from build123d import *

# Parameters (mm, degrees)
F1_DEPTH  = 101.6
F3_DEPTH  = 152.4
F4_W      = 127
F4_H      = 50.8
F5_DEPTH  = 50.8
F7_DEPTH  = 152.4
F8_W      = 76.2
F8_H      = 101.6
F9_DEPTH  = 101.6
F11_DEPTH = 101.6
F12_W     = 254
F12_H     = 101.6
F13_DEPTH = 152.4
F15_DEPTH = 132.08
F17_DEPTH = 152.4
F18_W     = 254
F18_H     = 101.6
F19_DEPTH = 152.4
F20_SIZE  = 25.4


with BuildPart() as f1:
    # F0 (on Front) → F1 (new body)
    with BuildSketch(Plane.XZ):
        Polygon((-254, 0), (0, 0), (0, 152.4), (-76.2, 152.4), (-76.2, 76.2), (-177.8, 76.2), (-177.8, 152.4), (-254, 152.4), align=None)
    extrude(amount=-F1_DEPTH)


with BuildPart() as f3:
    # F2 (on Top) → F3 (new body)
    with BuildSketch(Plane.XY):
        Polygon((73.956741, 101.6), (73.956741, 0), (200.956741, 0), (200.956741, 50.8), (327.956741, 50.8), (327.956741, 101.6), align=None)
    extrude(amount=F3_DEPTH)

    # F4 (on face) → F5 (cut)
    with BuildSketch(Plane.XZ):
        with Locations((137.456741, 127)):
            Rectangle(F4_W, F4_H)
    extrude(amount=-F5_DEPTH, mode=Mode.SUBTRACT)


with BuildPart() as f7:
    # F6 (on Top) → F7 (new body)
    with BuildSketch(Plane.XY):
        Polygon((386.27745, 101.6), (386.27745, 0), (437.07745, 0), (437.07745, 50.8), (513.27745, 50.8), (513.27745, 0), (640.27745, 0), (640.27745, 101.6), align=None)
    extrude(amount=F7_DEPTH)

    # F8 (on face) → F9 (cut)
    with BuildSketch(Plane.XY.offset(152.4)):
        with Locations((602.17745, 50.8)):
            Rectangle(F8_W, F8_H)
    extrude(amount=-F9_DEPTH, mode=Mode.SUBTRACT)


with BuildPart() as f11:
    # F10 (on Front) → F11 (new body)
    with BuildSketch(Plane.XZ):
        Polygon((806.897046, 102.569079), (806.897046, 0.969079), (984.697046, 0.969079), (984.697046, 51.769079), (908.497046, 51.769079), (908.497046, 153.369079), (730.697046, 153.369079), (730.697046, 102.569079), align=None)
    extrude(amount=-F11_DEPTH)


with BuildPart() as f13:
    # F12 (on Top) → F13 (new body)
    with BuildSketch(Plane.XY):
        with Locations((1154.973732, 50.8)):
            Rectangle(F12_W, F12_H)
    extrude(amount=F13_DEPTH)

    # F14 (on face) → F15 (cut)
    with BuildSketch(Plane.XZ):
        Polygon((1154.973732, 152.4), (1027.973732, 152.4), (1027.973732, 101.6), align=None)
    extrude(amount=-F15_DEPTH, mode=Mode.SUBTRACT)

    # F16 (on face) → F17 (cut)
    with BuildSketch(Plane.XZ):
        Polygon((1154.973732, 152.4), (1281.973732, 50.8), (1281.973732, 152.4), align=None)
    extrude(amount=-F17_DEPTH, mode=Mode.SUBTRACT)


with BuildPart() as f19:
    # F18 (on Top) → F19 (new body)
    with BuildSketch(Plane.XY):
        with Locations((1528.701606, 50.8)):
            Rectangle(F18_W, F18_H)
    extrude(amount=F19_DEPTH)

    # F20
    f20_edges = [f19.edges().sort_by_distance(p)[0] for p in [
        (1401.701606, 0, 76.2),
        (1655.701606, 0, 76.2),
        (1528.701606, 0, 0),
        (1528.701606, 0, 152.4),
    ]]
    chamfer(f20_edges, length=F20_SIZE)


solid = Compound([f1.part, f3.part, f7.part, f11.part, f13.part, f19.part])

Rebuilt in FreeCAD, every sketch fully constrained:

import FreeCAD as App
import Part
import Sketcher

V = App.Vector
Q = App.Units.Quantity


def edges_at(feature, points):
    """Names of the edges that pass closest to the given points."""
    edges = feature.Shape.Edges
    near = lambda p: min(range(len(edges)), key=lambda i: edges[i].distToShape(Part.Vertex(*p))[0])
    return sorted({f"Edge{near(p) + 1}" for p in points})

doc = App.newDocument("Part")
body = doc.addObject("PartDesign::Body", "Body")

# Sketch on XZ plane
sketch1 = body.newObject("Sketcher::SketchObject", "Sketch")
sketch1.AttachmentSupport = (doc.getObject("XZ_Plane"), [""])
sketch1.MapMode = "FlatFace"
sketch1.addGeometry(Part.LineSegment(V(-254, 0, 0), V(0, 0, 0)), False)
sketch1.addGeometry(Part.LineSegment(V(0, 0, 0), V(0, 152, 0)), False)
sketch1.addGeometry(Part.LineSegment(V(0, 152, 0), V(-76, 152, 0)), False)
sketch1.addGeometry(Part.LineSegment(V(-76, 152, 0), V(-76, 76, 0)), False)
sketch1.addGeometry(Part.LineSegment(V(-76, 76, 0), V(-178, 76, 0)), False)
sketch1.addGeometry(Part.LineSegment(V(-178, 76, 0), V(-178, 152, 0)), False)
sketch1.addGeometry(Part.LineSegment(V(-178, 152, 0), V(-254, 152, 0)), False)
sketch1.addGeometry(Part.LineSegment(V(-254, 152, 0), V(-254, 0, 0)), False)
sketch1.addConstraint(Sketcher.Constraint("Coincident", 0, 2, 1, 1))
sketch1.addConstraint(Sketcher.Constraint("Coincident", 1, 2, 2, 1))
sketch1.addConstraint(Sketcher.Constraint("Coincident", 2, 2, 3, 1))
sketch1.addConstraint(Sketcher.Constraint("Coincident", 3, 2, 4, 1))
sketch1.addConstraint(Sketcher.Constraint("Coincident", 4, 2, 5, 1))
sketch1.addConstraint(Sketcher.Constraint("Coincident", 5, 2, 6, 1))
sketch1.addConstraint(Sketcher.Constraint("Coincident", 6, 2, 7, 1))
sketch1.addConstraint(Sketcher.Constraint("Coincident", 7, 2, 0, 1))
sketch1.addConstraint(Sketcher.Constraint("Horizontal", 0))
sketch1.addConstraint(Sketcher.Constraint("Vertical", 1))
sketch1.addConstraint(Sketcher.Constraint("Horizontal", 2))
sketch1.addConstraint(Sketcher.Constraint("Vertical", 3))
sketch1.addConstraint(Sketcher.Constraint("Horizontal", 4))
sketch1.addConstraint(Sketcher.Constraint("Vertical", 5))
sketch1.addConstraint(Sketcher.Constraint("Horizontal", 6))
sketch1.addConstraint(Sketcher.Constraint("Vertical", 7))
sketch1.addConstraint(Sketcher.Constraint("Coincident", 0, 2, -1, 1))
sketch1.addConstraint(Sketcher.Constraint("Horizontal", 2, 2, 5, 2))
sketch1.addConstraint(Sketcher.Constraint("Equal", 2, 6))
sketch1.addConstraint(Sketcher.Constraint("Equal", 6, 3))
sketch1.addConstraint(Sketcher.Constraint("DistanceX", 0, 1, 0, 2, Q("10 in")))
sketch1.addConstraint(Sketcher.Constraint("DistanceX", 2, 2, 2, 1, Q("3 in")))
sketch1.addConstraint(Sketcher.Constraint("DistanceY", 1, 1, 1, 2, Q("6 in")))
pad1 = body.newObject("PartDesign::Pad", "Pad")
pad1.Profile = sketch1
pad1.Length = Q("4 in")
pad1.Reversed = True
body2 = doc.addObject("PartDesign::Body", "Body001")

# Sketch on XY plane
sketch2 = body2.newObject("Sketcher::SketchObject", "Sketch001")
sketch2.AttachmentSupport = (doc.getObject("XY_Plane001"), [""])
sketch2.MapMode = "FlatFace"
sketch2.addGeometry(Part.LineSegment(V(74, 102, 0), V(74, 0, 0)), False)
sketch2.addGeometry(Part.LineSegment(V(74, 0, 0), V(201, 0, 0)), False)
sketch2.addGeometry(Part.LineSegment(V(201, 0, 0), V(201, 51, 0)), False)
sketch2.addGeometry(Part.LineSegment(V(201, 51, 0), V(328, 51, 0)), False)
sketch2.addGeometry(Part.LineSegment(V(328, 51, 0), V(328, 102, 0)), False)
sketch2.addGeometry(Part.LineSegment(V(328, 102, 0), V(74, 102, 0)), False)
sketch2.addConstraint(Sketcher.Constraint("Coincident", 0, 2, 1, 1))
sketch2.addConstraint(Sketcher.Constraint("Coincident", 1, 2, 2, 1))
sketch2.addConstraint(Sketcher.Constraint("Coincident", 2, 2, 3, 1))
sketch2.addConstraint(Sketcher.Constraint("Coincident", 3, 2, 4, 1))
sketch2.addConstraint(Sketcher.Constraint("Coincident", 4, 2, 5, 1))
sketch2.addConstraint(Sketcher.Constraint("Coincident", 5, 2, 0, 1))
sketch2.addConstraint(Sketcher.Constraint("Vertical", 0))
sketch2.addConstraint(Sketcher.Constraint("Horizontal", 1))
sketch2.addConstraint(Sketcher.Constraint("Vertical", 2))
sketch2.addConstraint(Sketcher.Constraint("Horizontal", 3))
sketch2.addConstraint(Sketcher.Constraint("Vertical", 4))
sketch2.addConstraint(Sketcher.Constraint("Horizontal", 5))
sketch2.addConstraint(Sketcher.Constraint("PointOnObject", 0, 2, -1))
sketch2.addConstraint(Sketcher.Constraint("Equal", 1, 3))
sketch2.addConstraint(Sketcher.Constraint("Equal", 2, 4))
sketch2.addConstraint(Sketcher.Constraint("DistanceX", 1, 1, 1, 2, Q("5 in")))
sketch2.addConstraint(Sketcher.Constraint("DistanceY", 0, 2, 0, 1, Q("4 in")))
sketch2.addConstraint(Sketcher.Constraint("DistanceX", -1, 1, 0, 2, Q("73.956741 mm")))
pad2 = body2.newObject("PartDesign::Pad", "Pad001")
pad2.Profile = sketch2
pad2.Length = Q("6 in")

# Sketch on XZ plane
sketch3 = body2.newObject("Sketcher::SketchObject", "Sketch002")
sketch3.AttachmentSupport = (doc.getObject("XZ_Plane001"), [""])
sketch3.MapMode = "FlatFace"
sketch3.addGeometry(Part.LineSegment(V(74, 152, 0), V(74, 102, 0)), False)
sketch3.addGeometry(Part.LineSegment(V(74, 102, 0), V(201, 102, 0)), False)
sketch3.addGeometry(Part.LineSegment(V(201, 102, 0), V(201, 152, 0)), False)
sketch3.addGeometry(Part.LineSegment(V(201, 152, 0), V(74, 152, 0)), False)
sketch3.addConstraint(Sketcher.Constraint("Coincident", 0, 2, 1, 1))
sketch3.addConstraint(Sketcher.Constraint("Coincident", 1, 2, 2, 1))
sketch3.addConstraint(Sketcher.Constraint("Coincident", 2, 2, 3, 1))
sketch3.addConstraint(Sketcher.Constraint("Coincident", 3, 2, 0, 1))
sketch3.addConstraint(Sketcher.Constraint("Vertical", 0))
sketch3.addConstraint(Sketcher.Constraint("Horizontal", 1))
sketch3.addConstraint(Sketcher.Constraint("Vertical", 2))
sketch3.addConstraint(Sketcher.Constraint("Horizontal", 3))
sketch3.addConstraint(Sketcher.Constraint("DistanceX", 1, 1, 1, 2, Q("5 in")))
sketch3.addConstraint(Sketcher.Constraint("DistanceY", 0, 2, 0, 1, Q("2 in")))
sketch3.addConstraint(Sketcher.Constraint("DistanceY", -1, 1, 0, 2, Q("4 in")))
sketch3.addConstraint(Sketcher.Constraint("DistanceX", -1, 1, 0, 2, Q("73.956741 mm")))
pocket1 = body2.newObject("PartDesign::Pocket", "Pocket")
pocket1.Profile = sketch3
pocket1.Length = Q("2 in")
body3 = doc.addObject("PartDesign::Body", "Body002")

# Sketch on XY plane
sketch4 = body3.newObject("Sketcher::SketchObject", "Sketch003")
sketch4.AttachmentSupport = (doc.getObject("XY_Plane002"), [""])
sketch4.MapMode = "FlatFace"
sketch4.addGeometry(Part.LineSegment(V(386, 102, 0), V(386, 0, 0)), False)
sketch4.addGeometry(Part.LineSegment(V(386, 0, 0), V(437, 0, 0)), False)
sketch4.addGeometry(Part.LineSegment(V(437, 0, 0), V(437, 51, 0)), False)
sketch4.addGeometry(Part.LineSegment(V(437, 51, 0), V(513, 51, 0)), False)
sketch4.addGeometry(Part.LineSegment(V(513, 51, 0), V(513, 0, 0)), False)
sketch4.addGeometry(Part.LineSegment(V(513, 0, 0), V(640, 0, 0)), False)
sketch4.addGeometry(Part.LineSegment(V(640, 0, 0), V(640, 102, 0)), False)
sketch4.addGeometry(Part.LineSegment(V(640, 102, 0), V(386, 102, 0)), False)
sketch4.addConstraint(Sketcher.Constraint("Coincident", 0, 2, 1, 1))
sketch4.addConstraint(Sketcher.Constraint("Coincident", 1, 2, 2, 1))
sketch4.addConstraint(Sketcher.Constraint("Coincident", 2, 2, 3, 1))
sketch4.addConstraint(Sketcher.Constraint("Coincident", 3, 2, 4, 1))
sketch4.addConstraint(Sketcher.Constraint("Coincident", 4, 2, 5, 1))
sketch4.addConstraint(Sketcher.Constraint("Coincident", 5, 2, 6, 1))
sketch4.addConstraint(Sketcher.Constraint("Coincident", 6, 2, 7, 1))
sketch4.addConstraint(Sketcher.Constraint("Coincident", 7, 2, 0, 1))
sketch4.addConstraint(Sketcher.Constraint("Vertical", 0))
sketch4.addConstraint(Sketcher.Constraint("Horizontal", 1))
sketch4.addConstraint(Sketcher.Constraint("Vertical", 2))
sketch4.addConstraint(Sketcher.Constraint("Horizontal", 3))
sketch4.addConstraint(Sketcher.Constraint("Vertical", 4))
sketch4.addConstraint(Sketcher.Constraint("Horizontal", 5))
sketch4.addConstraint(Sketcher.Constraint("Vertical", 6))
sketch4.addConstraint(Sketcher.Constraint("Horizontal", 7))
sketch4.addConstraint(Sketcher.Constraint("PointOnObject", 0, 2, -1))
sketch4.addConstraint(Sketcher.Constraint("PointOnObject", 4, 2, -1))
sketch4.addConstraint(Sketcher.Constraint("Equal", 1, 2))
sketch4.addConstraint(Sketcher.Constraint("DistanceX", 1, 1, 1, 2, Q("2 in")))
sketch4.addConstraint(Sketcher.Constraint("DistanceX", 3, 1, 3, 2, Q("3 in")))
sketch4.addConstraint(Sketcher.Constraint("DistanceX", 5, 1, 5, 2, Q("5 in")))
sketch4.addConstraint(Sketcher.Constraint("DistanceY", 0, 2, 0, 1, Q("4 in")))
sketch4.addConstraint(Sketcher.Constraint("DistanceX", -1, 1, 0, 2, Q("386.27745 mm")))
pad3 = body3.newObject("PartDesign::Pad", "Pad002")
pad3.Profile = sketch4
pad3.Length = Q("6 in")

# Sketch on XY plane
sketch5 = body3.newObject("Sketcher::SketchObject", "Sketch004")
sketch5.AttachmentSupport = (doc.getObject("XY_Plane002"), [""])
sketch5.MapMode = "FlatFace"
sketch5.AttachmentOffset = App.Placement(V(0, 0, 6 * 25.4), App.Rotation())
sketch5.addGeometry(Part.LineSegment(V(564, 102, 0), V(564, 0, 0)), False)
sketch5.addGeometry(Part.LineSegment(V(564, 0, 0), V(640, 0, 0)), False)
sketch5.addGeometry(Part.LineSegment(V(640, 0, 0), V(640, 102, 0)), False)
sketch5.addGeometry(Part.LineSegment(V(640, 102, 0), V(564, 102, 0)), False)
sketch5.addConstraint(Sketcher.Constraint("Coincident", 0, 2, 1, 1))
sketch5.addConstraint(Sketcher.Constraint("Coincident", 1, 2, 2, 1))
sketch5.addConstraint(Sketcher.Constraint("Coincident", 2, 2, 3, 1))
sketch5.addConstraint(Sketcher.Constraint("Coincident", 3, 2, 0, 1))
sketch5.addConstraint(Sketcher.Constraint("Vertical", 0))
sketch5.addConstraint(Sketcher.Constraint("Horizontal", 1))
sketch5.addConstraint(Sketcher.Constraint("Vertical", 2))
sketch5.addConstraint(Sketcher.Constraint("Horizontal", 3))
sketch5.addConstraint(Sketcher.Constraint("PointOnObject", 0, 2, -1))
sketch5.addConstraint(Sketcher.Constraint("DistanceX", 1, 1, 1, 2, Q("3 in")))
sketch5.addConstraint(Sketcher.Constraint("DistanceY", 0, 2, 0, 1, Q("4 in")))
sketch5.addConstraint(Sketcher.Constraint("DistanceX", -1, 1, 0, 2, Q("564.07745 mm")))
pocket2 = body3.newObject("PartDesign::Pocket", "Pocket001")
pocket2.Profile = sketch5
pocket2.Length = Q("4 in")
body4 = doc.addObject("PartDesign::Body", "Body003")

# Sketch on XZ plane
sketch6 = body4.newObject("Sketcher::SketchObject", "Sketch005")
sketch6.AttachmentSupport = (doc.getObject("XZ_Plane003"), [""])
sketch6.MapMode = "FlatFace"
sketch6.addGeometry(Part.LineSegment(V(807, 103, 0), V(807, 1, 0)), False)
sketch6.addGeometry(Part.LineSegment(V(807, 1, 0), V(985, 1, 0)), False)
sketch6.addGeometry(Part.LineSegment(V(985, 1, 0), V(985, 52, 0)), False)
sketch6.addGeometry(Part.LineSegment(V(985, 52, 0), V(908, 52, 0)), False)
sketch6.addGeometry(Part.LineSegment(V(908, 52, 0), V(908, 153, 0)), False)
sketch6.addGeometry(Part.LineSegment(V(908, 153, 0), V(731, 153, 0)), False)
sketch6.addGeometry(Part.LineSegment(V(731, 153, 0), V(731, 103, 0)), False)
sketch6.addGeometry(Part.LineSegment(V(731, 103, 0), V(807, 103, 0)), False)
sketch6.addConstraint(Sketcher.Constraint("Coincident", 0, 2, 1, 1))
sketch6.addConstraint(Sketcher.Constraint("Coincident", 1, 2, 2, 1))
sketch6.addConstraint(Sketcher.Constraint("Coincident", 2, 2, 3, 1))
sketch6.addConstraint(Sketcher.Constraint("Coincident", 3, 2, 4, 1))
sketch6.addConstraint(Sketcher.Constraint("Coincident", 4, 2, 5, 1))
sketch6.addConstraint(Sketcher.Constraint("Coincident", 5, 2, 6, 1))
sketch6.addConstraint(Sketcher.Constraint("Coincident", 6, 2, 7, 1))
sketch6.addConstraint(Sketcher.Constraint("Coincident", 7, 2, 0, 1))
sketch6.addConstraint(Sketcher.Constraint("Vertical", 0))
sketch6.addConstraint(Sketcher.Constraint("Horizontal", 1))
sketch6.addConstraint(Sketcher.Constraint("Vertical", 2))
sketch6.addConstraint(Sketcher.Constraint("Horizontal", 3))
sketch6.addConstraint(Sketcher.Constraint("Vertical", 4))
sketch6.addConstraint(Sketcher.Constraint("Horizontal", 5))
sketch6.addConstraint(Sketcher.Constraint("Vertical", 6))
sketch6.addConstraint(Sketcher.Constraint("Horizontal", 7))
sketch6.addConstraint(Sketcher.Constraint("Equal", 1, 5))
sketch6.addConstraint(Sketcher.Constraint("Equal", 0, 4))
sketch6.addConstraint(Sketcher.Constraint("DistanceX", 1, 1, 1, 2, Q("7 in")))
sketch6.addConstraint(Sketcher.Constraint("DistanceX", 3, 2, 3, 1, Q("3 in")))
sketch6.addConstraint(Sketcher.Constraint("DistanceY", 0, 2, 0, 1, Q("4 in")))
sketch6.addConstraint(Sketcher.Constraint("DistanceY", 2, 1, 2, 2, Q("2 in")))
sketch6.addConstraint(Sketcher.Constraint("DistanceY", -1, 1, 0, 2, Q("0.969079 mm")))
sketch6.addConstraint(Sketcher.Constraint("DistanceX", -1, 1, 0, 2, Q("806.897046 mm")))
pad4 = body4.newObject("PartDesign::Pad", "Pad003")
pad4.Profile = sketch6
pad4.Length = Q("4 in")
pad4.Reversed = True
body5 = doc.addObject("PartDesign::Body", "Body004")

# Sketch on XY plane
sketch7 = body5.newObject("Sketcher::SketchObject", "Sketch006")
sketch7.AttachmentSupport = (doc.getObject("XY_Plane004"), [""])
sketch7.MapMode = "FlatFace"
sketch7.addGeometry(Part.LineSegment(V(1028, 102, 0), V(1028, 0, 0)), False)
sketch7.addGeometry(Part.LineSegment(V(1028, 0, 0), V(1282, 0, 0)), False)
sketch7.addGeometry(Part.LineSegment(V(1282, 0, 0), V(1282, 102, 0)), False)
sketch7.addGeometry(Part.LineSegment(V(1282, 102, 0), V(1028, 102, 0)), False)
sketch7.addConstraint(Sketcher.Constraint("Coincident", 0, 2, 1, 1))
sketch7.addConstraint(Sketcher.Constraint("Coincident", 1, 2, 2, 1))
sketch7.addConstraint(Sketcher.Constraint("Coincident", 2, 2, 3, 1))
sketch7.addConstraint(Sketcher.Constraint("Coincident", 3, 2, 0, 1))
sketch7.addConstraint(Sketcher.Constraint("Vertical", 0))
sketch7.addConstraint(Sketcher.Constraint("Horizontal", 1))
sketch7.addConstraint(Sketcher.Constraint("Vertical", 2))
sketch7.addConstraint(Sketcher.Constraint("Horizontal", 3))
sketch7.addConstraint(Sketcher.Constraint("PointOnObject", 0, 2, -1))
sketch7.addConstraint(Sketcher.Constraint("DistanceX", 1, 1, 1, 2, Q("10 in")))
sketch7.addConstraint(Sketcher.Constraint("DistanceY", 0, 2, 0, 1, Q("4 in")))
sketch7.addConstraint(Sketcher.Constraint("DistanceX", -1, 1, 0, 2, Q("1027.973732 mm")))
pad5 = body5.newObject("PartDesign::Pad", "Pad004")
pad5.Profile = sketch7
pad5.Length = Q("6 in")

# Sketch on XZ plane
sketch8 = body5.newObject("Sketcher::SketchObject", "Sketch007")
sketch8.AttachmentSupport = (doc.getObject("XZ_Plane004"), [""])
sketch8.MapMode = "FlatFace"
sketch8.addGeometry(Part.LineSegment(V(1155, 152, 0), V(1028, 152, 0)), False)
sketch8.addGeometry(Part.LineSegment(V(1028, 152, 0), V(1028, 102, 0)), False)
sketch8.addGeometry(Part.LineSegment(V(1028, 102, 0), V(1155, 152, 0)), False)
sketch8.addConstraint(Sketcher.Constraint("Coincident", 0, 2, 1, 1))
sketch8.addConstraint(Sketcher.Constraint("Coincident", 1, 2, 2, 1))
sketch8.addConstraint(Sketcher.Constraint("Coincident", 2, 2, 0, 1))
sketch8.addConstraint(Sketcher.Constraint("Horizontal", 0))
sketch8.addConstraint(Sketcher.Constraint("Vertical", 1))
sketch8.addConstraint(Sketcher.Constraint("DistanceX", 0, 2, 0, 1, Q("5 in")))
sketch8.addConstraint(Sketcher.Constraint("DistanceY", 1, 2, 1, 1, Q("2 in")))
sketch8.addConstraint(Sketcher.Constraint("DistanceY", -1, 1, 0, 2, Q("6 in")))
sketch8.addConstraint(Sketcher.Constraint("DistanceX", -1, 1, 0, 2, Q("1027.973732 mm")))
pocket3 = body5.newObject("PartDesign::Pocket", "Pocket002")
pocket3.Profile = sketch8
pocket3.Length = Q("5.2 in")

# Sketch on XZ plane
sketch9 = body5.newObject("Sketcher::SketchObject", "Sketch008")
sketch9.AttachmentSupport = (doc.getObject("XZ_Plane004"), [""])
sketch9.MapMode = "FlatFace"
sketch9.addGeometry(Part.LineSegment(V(1155, 152, 0), V(1282, 51, 0)), False)
sketch9.addGeometry(Part.LineSegment(V(1282, 51, 0), V(1282, 152, 0)), False)
sketch9.addGeometry(Part.LineSegment(V(1282, 152, 0), V(1155, 152, 0)), False)
sketch9.addConstraint(Sketcher.Constraint("Coincident", 0, 2, 1, 1))
sketch9.addConstraint(Sketcher.Constraint("Coincident", 1, 2, 2, 1))
sketch9.addConstraint(Sketcher.Constraint("Coincident", 2, 2, 0, 1))
sketch9.addConstraint(Sketcher.Constraint("Vertical", 1))
sketch9.addConstraint(Sketcher.Constraint("Horizontal", 2))
sketch9.addConstraint(Sketcher.Constraint("DistanceX", 2, 2, 2, 1, Q("5 in")))
sketch9.addConstraint(Sketcher.Constraint("DistanceY", 1, 1, 1, 2, Q("4 in")))
sketch9.addConstraint(Sketcher.Constraint("DistanceY", -1, 1, 0, 2, Q("2 in")))
sketch9.addConstraint(Sketcher.Constraint("DistanceX", -1, 1, 0, 2, Q("1281.973732 mm")))
pocket4 = body5.newObject("PartDesign::Pocket", "Pocket003")
pocket4.Profile = sketch9
pocket4.Length = Q("6 in")
body6 = doc.addObject("PartDesign::Body", "Body005")

# Sketch on XY plane
sketch10 = body6.newObject("Sketcher::SketchObject", "Sketch009")
sketch10.AttachmentSupport = (doc.getObject("XY_Plane005"), [""])
sketch10.MapMode = "FlatFace"
sketch10.addGeometry(Part.LineSegment(V(1402, 102, 0), V(1402, 0, 0)), False)
sketch10.addGeometry(Part.LineSegment(V(1402, 0, 0), V(1656, 0, 0)), False)
sketch10.addGeometry(Part.LineSegment(V(1656, 0, 0), V(1656, 102, 0)), False)
sketch10.addGeometry(Part.LineSegment(V(1656, 102, 0), V(1402, 102, 0)), False)
sketch10.addConstraint(Sketcher.Constraint("Coincident", 0, 2, 1, 1))
sketch10.addConstraint(Sketcher.Constraint("Coincident", 1, 2, 2, 1))
sketch10.addConstraint(Sketcher.Constraint("Coincident", 2, 2, 3, 1))
sketch10.addConstraint(Sketcher.Constraint("Coincident", 3, 2, 0, 1))
sketch10.addConstraint(Sketcher.Constraint("Vertical", 0))
sketch10.addConstraint(Sketcher.Constraint("Horizontal", 1))
sketch10.addConstraint(Sketcher.Constraint("Vertical", 2))
sketch10.addConstraint(Sketcher.Constraint("Horizontal", 3))
sketch10.addConstraint(Sketcher.Constraint("PointOnObject", 0, 2, -1))
sketch10.addConstraint(Sketcher.Constraint("DistanceX", 1, 1, 1, 2, Q("10 in")))
sketch10.addConstraint(Sketcher.Constraint("DistanceY", 0, 2, 0, 1, Q("4 in")))
sketch10.addConstraint(Sketcher.Constraint("DistanceX", -1, 1, 0, 2, Q("1401.701606 mm")))
pad6 = body6.newObject("PartDesign::Pad", "Pad005")
pad6.Profile = sketch10
pad6.Length = Q("6 in")
doc.recompute()

chamfer = body6.newObject("PartDesign::Chamfer", "Chamfer")
chamfer.Base = (pad6, edges_at(pad6, [
    (1401.702, 0, 76.2),
    (1655.702, 0, 76.2),
    (1528.702, 0, 0),
    (1528.702, 0, 152.4),
]))
chamfer.Size = Q("1 in")

doc.recompute()
